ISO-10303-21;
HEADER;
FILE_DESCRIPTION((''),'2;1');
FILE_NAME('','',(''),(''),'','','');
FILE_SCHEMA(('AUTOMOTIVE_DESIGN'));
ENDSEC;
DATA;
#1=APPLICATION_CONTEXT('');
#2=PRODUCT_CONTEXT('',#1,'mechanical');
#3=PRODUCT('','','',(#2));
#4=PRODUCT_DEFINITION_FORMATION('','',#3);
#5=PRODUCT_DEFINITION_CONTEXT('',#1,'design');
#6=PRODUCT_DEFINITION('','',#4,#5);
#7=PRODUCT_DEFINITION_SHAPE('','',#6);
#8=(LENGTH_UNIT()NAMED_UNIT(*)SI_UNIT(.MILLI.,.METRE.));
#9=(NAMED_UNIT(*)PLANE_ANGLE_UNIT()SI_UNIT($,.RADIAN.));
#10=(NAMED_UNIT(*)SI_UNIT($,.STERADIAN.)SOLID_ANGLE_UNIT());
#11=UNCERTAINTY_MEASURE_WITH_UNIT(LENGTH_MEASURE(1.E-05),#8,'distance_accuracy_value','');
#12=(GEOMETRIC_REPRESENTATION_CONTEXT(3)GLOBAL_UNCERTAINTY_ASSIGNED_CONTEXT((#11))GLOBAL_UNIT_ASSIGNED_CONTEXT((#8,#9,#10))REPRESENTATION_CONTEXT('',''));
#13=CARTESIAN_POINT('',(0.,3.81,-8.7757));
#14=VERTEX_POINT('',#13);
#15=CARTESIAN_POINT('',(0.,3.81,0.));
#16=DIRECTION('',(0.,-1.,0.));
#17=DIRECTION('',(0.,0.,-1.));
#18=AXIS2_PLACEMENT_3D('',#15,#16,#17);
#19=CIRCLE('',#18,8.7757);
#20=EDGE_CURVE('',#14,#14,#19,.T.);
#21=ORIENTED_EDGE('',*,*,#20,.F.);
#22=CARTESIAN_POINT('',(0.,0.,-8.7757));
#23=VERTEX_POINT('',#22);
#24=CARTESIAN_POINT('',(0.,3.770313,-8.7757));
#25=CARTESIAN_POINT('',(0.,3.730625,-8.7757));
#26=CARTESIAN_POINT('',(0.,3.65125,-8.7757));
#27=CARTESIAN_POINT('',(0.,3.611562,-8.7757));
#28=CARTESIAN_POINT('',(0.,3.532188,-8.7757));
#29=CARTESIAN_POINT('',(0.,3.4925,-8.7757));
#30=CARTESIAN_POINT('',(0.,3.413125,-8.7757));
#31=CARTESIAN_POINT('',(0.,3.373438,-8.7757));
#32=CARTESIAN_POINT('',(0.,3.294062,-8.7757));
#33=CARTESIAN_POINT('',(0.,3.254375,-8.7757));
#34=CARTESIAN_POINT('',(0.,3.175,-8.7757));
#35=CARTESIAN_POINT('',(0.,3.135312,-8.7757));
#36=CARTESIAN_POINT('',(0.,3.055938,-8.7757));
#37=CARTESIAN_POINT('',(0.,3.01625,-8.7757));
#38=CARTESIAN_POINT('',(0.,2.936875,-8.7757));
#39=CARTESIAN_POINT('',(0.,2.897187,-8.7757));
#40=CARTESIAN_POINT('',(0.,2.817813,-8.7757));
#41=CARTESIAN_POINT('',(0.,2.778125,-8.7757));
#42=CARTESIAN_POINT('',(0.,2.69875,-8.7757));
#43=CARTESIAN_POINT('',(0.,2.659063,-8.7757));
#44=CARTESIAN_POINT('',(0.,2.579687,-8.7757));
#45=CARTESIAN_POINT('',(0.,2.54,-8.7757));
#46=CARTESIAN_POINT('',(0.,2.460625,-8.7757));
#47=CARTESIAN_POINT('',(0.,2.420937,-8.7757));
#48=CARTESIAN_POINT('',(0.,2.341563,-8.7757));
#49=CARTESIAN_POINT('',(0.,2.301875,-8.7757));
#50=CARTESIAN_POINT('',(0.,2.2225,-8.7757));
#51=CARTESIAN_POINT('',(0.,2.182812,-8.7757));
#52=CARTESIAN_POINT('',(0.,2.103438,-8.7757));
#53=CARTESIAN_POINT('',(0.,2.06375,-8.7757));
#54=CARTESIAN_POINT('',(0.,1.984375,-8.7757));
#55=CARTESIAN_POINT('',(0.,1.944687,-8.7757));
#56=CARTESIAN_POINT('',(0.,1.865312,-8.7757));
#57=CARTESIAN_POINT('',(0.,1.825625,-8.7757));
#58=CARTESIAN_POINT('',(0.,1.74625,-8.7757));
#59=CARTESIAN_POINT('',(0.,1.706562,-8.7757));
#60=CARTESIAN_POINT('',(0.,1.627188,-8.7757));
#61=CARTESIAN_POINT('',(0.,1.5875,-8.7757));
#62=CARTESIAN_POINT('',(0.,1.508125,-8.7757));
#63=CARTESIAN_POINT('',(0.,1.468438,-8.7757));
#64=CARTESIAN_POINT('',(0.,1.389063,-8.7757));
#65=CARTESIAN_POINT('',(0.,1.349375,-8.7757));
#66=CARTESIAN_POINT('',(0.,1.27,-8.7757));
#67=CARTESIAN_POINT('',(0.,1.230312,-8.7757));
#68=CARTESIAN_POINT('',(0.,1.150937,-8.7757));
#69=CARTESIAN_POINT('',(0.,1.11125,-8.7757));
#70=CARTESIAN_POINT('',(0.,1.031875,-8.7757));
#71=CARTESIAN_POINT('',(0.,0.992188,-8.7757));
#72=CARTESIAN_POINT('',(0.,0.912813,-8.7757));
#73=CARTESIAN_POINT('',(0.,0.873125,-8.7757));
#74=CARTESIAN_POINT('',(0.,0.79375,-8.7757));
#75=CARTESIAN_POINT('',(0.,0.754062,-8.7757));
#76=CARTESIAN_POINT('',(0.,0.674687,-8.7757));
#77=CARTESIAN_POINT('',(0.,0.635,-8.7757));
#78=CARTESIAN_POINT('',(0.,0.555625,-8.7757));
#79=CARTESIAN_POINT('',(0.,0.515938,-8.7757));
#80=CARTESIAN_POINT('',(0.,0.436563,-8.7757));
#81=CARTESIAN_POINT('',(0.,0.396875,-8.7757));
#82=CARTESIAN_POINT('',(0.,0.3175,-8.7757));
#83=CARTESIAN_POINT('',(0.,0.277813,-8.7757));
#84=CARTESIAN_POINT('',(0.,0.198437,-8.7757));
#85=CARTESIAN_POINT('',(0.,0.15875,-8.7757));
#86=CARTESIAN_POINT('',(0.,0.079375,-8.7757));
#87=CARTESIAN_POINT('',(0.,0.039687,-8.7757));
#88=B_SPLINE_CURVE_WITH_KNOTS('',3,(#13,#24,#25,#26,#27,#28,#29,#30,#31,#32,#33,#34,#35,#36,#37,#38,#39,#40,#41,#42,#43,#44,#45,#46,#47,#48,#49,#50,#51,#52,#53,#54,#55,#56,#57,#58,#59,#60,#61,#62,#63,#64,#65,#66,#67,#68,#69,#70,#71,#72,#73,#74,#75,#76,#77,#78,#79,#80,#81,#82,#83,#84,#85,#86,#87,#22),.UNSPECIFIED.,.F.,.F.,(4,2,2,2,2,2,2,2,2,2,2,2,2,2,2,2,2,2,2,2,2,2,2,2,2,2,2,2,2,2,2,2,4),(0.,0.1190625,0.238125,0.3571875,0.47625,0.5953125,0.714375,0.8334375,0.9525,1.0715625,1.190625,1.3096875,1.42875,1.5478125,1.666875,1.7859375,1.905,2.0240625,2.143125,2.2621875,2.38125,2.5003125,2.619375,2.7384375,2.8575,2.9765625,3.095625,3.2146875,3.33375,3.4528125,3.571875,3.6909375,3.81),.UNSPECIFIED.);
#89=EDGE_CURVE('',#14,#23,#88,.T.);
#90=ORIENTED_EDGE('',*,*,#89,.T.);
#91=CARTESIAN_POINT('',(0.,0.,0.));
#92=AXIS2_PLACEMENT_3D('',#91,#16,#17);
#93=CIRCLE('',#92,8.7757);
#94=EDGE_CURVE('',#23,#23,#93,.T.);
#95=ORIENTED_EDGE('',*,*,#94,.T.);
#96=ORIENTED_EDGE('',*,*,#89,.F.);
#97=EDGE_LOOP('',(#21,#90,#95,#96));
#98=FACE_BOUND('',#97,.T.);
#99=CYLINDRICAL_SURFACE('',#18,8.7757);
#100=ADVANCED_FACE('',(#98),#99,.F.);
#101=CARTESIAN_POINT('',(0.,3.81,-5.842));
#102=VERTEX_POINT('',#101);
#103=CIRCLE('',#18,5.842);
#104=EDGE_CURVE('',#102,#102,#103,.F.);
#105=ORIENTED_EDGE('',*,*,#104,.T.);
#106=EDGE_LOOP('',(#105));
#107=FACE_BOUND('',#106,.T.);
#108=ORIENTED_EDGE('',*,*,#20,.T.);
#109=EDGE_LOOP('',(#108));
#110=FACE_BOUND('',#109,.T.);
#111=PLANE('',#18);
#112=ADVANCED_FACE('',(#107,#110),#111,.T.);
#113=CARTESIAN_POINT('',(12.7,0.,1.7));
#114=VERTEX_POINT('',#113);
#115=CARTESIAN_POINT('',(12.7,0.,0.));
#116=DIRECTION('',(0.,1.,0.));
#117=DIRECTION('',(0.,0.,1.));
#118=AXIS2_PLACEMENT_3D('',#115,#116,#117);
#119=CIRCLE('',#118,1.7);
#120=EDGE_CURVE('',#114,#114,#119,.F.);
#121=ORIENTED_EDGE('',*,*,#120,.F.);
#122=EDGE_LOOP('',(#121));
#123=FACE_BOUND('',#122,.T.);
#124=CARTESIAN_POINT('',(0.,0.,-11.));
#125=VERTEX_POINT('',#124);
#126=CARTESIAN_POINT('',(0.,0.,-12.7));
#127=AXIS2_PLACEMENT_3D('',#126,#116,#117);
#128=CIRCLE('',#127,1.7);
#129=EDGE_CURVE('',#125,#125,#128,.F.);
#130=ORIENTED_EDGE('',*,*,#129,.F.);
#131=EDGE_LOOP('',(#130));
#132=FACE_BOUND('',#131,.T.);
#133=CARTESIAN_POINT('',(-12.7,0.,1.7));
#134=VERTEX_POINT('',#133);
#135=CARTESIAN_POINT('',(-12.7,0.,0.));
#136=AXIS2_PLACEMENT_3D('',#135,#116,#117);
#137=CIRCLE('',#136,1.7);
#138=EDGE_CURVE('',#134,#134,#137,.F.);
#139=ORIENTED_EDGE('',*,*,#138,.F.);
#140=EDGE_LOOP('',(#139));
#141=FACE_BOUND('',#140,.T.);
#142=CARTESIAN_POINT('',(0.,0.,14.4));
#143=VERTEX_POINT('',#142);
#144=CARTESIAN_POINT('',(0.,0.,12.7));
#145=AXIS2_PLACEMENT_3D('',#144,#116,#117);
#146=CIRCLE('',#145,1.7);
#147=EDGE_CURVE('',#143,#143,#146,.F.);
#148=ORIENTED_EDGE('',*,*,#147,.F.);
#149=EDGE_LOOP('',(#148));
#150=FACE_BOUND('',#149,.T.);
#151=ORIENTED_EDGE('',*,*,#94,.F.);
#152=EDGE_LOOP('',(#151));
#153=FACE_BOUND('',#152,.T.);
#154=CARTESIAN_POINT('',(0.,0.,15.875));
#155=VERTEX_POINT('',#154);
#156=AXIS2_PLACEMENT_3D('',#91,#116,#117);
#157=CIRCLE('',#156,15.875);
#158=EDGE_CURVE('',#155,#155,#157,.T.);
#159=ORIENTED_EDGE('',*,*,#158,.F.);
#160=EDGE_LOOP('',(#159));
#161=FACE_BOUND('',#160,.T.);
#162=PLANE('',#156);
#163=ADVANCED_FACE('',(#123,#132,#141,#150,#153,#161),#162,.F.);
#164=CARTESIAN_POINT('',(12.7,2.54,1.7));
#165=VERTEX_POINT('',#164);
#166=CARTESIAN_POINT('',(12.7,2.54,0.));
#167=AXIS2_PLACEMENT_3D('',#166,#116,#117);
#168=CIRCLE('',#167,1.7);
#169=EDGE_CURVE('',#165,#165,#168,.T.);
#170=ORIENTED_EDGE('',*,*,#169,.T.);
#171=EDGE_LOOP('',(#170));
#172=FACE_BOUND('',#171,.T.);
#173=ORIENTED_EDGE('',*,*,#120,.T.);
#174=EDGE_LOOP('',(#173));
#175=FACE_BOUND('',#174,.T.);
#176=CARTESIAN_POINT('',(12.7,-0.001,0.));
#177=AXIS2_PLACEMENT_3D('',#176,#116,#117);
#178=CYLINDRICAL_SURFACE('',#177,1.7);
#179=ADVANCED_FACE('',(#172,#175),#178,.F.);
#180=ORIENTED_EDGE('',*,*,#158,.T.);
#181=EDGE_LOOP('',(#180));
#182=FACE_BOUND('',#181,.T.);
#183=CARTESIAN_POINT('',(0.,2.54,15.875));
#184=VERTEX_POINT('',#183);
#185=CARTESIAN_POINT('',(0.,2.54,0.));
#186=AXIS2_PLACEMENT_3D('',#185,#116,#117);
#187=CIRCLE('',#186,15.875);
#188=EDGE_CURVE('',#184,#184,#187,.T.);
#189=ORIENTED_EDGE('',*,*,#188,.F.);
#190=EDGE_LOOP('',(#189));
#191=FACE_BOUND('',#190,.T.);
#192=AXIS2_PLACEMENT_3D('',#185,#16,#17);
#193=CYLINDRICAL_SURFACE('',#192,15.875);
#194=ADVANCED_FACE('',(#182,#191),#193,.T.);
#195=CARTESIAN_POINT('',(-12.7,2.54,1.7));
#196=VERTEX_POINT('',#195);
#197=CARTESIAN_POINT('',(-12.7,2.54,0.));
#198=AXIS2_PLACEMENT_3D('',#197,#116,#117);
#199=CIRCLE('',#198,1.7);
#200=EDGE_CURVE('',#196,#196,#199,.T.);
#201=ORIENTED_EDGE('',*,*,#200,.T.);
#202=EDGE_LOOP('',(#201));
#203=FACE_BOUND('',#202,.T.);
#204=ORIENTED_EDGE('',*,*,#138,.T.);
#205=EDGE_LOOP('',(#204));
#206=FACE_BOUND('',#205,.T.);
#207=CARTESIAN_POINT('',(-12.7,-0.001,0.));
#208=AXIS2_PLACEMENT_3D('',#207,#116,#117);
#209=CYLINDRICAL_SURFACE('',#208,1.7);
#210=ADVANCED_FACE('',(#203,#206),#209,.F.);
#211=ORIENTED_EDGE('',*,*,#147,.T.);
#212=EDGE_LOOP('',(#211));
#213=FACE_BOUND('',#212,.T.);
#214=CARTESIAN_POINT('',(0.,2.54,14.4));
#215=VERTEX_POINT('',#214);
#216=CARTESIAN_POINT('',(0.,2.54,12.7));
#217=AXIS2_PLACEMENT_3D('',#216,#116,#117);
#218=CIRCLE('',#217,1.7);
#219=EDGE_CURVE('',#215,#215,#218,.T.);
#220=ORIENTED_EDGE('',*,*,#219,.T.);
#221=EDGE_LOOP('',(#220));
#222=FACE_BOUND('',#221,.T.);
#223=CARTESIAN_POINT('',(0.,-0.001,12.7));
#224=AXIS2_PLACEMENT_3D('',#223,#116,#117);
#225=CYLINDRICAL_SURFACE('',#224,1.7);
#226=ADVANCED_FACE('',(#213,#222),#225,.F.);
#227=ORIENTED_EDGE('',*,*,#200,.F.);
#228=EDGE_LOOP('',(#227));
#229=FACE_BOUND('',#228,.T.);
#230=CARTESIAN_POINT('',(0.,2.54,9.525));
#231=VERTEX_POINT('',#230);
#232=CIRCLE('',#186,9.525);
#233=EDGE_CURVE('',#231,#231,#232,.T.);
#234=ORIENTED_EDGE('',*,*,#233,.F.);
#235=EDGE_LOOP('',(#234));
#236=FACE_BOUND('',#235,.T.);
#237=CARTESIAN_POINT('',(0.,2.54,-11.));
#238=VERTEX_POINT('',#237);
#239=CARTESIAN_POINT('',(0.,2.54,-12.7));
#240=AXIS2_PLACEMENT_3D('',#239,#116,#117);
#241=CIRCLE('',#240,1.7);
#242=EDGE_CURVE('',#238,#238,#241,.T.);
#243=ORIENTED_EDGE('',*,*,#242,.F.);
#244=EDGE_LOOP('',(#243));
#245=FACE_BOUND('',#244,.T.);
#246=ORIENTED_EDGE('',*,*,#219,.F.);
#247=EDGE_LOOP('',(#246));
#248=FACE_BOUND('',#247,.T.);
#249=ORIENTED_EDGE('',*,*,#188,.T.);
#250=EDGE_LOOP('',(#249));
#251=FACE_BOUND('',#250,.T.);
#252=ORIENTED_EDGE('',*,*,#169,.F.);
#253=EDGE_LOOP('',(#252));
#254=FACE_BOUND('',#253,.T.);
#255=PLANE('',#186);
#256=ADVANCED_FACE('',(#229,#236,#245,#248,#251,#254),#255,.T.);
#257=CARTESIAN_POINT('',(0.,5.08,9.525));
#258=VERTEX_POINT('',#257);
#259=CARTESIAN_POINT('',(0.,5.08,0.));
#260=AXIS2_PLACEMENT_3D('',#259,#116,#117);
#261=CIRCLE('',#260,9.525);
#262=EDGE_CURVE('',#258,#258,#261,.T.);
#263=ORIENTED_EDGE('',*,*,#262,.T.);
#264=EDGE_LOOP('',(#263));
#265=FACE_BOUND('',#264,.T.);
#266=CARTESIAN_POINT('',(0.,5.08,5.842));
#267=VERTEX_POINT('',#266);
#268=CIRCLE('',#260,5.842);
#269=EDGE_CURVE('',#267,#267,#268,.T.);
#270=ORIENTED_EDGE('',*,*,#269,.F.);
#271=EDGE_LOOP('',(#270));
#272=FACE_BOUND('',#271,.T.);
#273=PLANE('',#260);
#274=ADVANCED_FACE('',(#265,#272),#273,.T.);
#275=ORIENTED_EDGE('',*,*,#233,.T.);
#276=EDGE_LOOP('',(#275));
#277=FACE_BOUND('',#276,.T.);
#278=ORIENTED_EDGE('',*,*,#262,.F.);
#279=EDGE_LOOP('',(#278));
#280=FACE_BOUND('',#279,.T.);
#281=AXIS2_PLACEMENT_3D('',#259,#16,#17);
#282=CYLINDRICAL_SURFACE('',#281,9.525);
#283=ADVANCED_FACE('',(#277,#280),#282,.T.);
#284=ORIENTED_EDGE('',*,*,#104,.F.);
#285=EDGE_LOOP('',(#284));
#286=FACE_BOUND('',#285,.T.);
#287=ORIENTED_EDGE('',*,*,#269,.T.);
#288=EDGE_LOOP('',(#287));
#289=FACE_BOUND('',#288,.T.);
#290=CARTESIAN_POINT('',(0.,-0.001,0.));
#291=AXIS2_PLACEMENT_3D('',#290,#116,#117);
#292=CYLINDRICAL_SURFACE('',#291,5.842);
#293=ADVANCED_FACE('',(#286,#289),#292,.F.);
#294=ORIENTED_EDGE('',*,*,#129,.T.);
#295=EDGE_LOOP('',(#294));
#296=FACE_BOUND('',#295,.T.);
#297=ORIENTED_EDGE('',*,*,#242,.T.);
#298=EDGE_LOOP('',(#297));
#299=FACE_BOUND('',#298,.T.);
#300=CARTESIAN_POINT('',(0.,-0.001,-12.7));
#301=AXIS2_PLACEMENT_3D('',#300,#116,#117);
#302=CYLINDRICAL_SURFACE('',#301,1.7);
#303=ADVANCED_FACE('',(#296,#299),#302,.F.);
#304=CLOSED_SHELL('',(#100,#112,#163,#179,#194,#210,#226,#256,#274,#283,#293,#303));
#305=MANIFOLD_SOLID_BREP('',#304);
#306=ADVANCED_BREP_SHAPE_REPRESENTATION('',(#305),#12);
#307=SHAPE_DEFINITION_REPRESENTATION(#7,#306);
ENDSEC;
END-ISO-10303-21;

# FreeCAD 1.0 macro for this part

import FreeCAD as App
import Part
import Sketcher
Q = App.Units.Quantity

doc = App.newDocument("Part")
body = doc.addObject("PartDesign::Body", "Body")

# Sketch on XZ plane
sketch1 = body.newObject("Sketcher::SketchObject", "Sketch")
sketch1.AttachmentSupport = (doc.getObject("XZ_Plane"), [""])
sketch1.MapMode = "FlatFace"
sketch1.addGeometry(Part.Circle(App.Vector(0, 0, 0), App.Vector(0, 0, 1), 16), False)
sketch1.addConstraint([
    Sketcher.Constraint("Coincident", 0, 3, -1, 1),
    Sketcher.Constraint("Diameter", 0, Q("1.25 in")),
])
pad1 = body.newObject("PartDesign::Pad", "Pad")
pad1.Profile = sketch1
pad1.Length = Q("0.1 in")
pad1.Reversed = True

# Sketch on XZ plane
sketch2 = body.newObject("Sketcher::SketchObject", "Sketch001")
sketch2.AttachmentSupport = (doc.getObject("XZ_Plane"), [""])
sketch2.MapMode = "FlatFace"
sketch2.AttachmentOffset = App.Placement(App.Vector(0, 0, -0.1 * 25.4), App.Rotation())
sketch2.addGeometry(Part.Circle(App.Vector(0, 0, 0), App.Vector(0, 0, 1), 10), False)
sketch2.addConstraint([
    Sketcher.Constraint("Coincident", 0, 3, -1, 1),
    Sketcher.Constraint("Diameter", 0, Q("0.75 in")),
])
pad2 = body.newObject("PartDesign::Pad", "Pad001")
pad2.Profile = sketch2
pad2.Length = Q("0.1 in")
pad2.Reversed = True

# Sketch on XZ plane
sketch3 = body.newObject("Sketcher::SketchObject", "Sketch002")
sketch3.AttachmentSupport = (doc.getObject("XZ_Plane"), [""])
sketch3.MapMode = "FlatFace"
sketch3.addGeometry(Part.Circle(App.Vector(0, 0, 0), App.Vector(0, 0, 1), 9), False)
sketch3.addConstraint([
    Sketcher.Constraint("Coincident", 0, 3, -1, 1),
    Sketcher.Constraint("Diameter", 0, Q("0.691 in")),
])
pocket1 = body.newObject("PartDesign::Pocket", "Pocket")
pocket1.Profile = sketch3
pocket1.Length = Q("0.15 in")

# Sketch on XZ plane
sketch4 = body.newObject("Sketcher::SketchObject", "Sketch003")
sketch4.AttachmentSupport = (doc.getObject("XZ_Plane"), [""])
sketch4.MapMode = "FlatFace"
sketch4.AttachmentOffset = App.Placement(App.Vector(0, 0, -0.2 * 25.4), App.Rotation())
sketch4.addGeometry(Part.Circle(App.Vector(0, 0, 0), App.Vector(0, 0, 1), 6), False)
sketch4.addConstraint([
    Sketcher.Constraint("Coincident", 0, 3, -1, 1),
    Sketcher.Constraint("Diameter", 0, Q("0.46 in")),
])
pocket2 = body.newObject("PartDesign::Pocket", "Pocket001")
pocket2.Profile = sketch4
pocket2.Type = "UpToFirst"
pocket2.Reversed = True

# Sketch on XZ plane
sketch5 = body.newObject("Sketcher::SketchObject", "Sketch004")
sketch5.AttachmentSupport = (doc.getObject("XZ_Plane"), [""])
sketch5.MapMode = "FlatFace"
sketch5.AttachmentOffset = App.Placement(App.Vector(0, 0, -0.1 * 25.4), App.Rotation())
sketch5.addGeometry(Part.Circle(App.Vector(0, -12.7, 0), App.Vector(0, 0, 1), 1.7), False)
sketch5.addConstraint([
    Sketcher.Constraint("PointOnObject", 0, 3, -2),
    Sketcher.Constraint("DistanceY", 0, 3, -1, 1, Q("0.5 in")),
    Sketcher.Constraint("Diameter", 0, Q("3.4 mm")),
])
pocket3 = body.newObject("PartDesign::Pocket", "Pocket002")
pocket3.Profile = sketch5
pocket3.Type = "UpToFirst"
pocket3.Reversed = True

# Sketch on XZ plane
sketch6 = body.newObject("Sketcher::SketchObject", "Sketch005")
sketch6.AttachmentSupport = (doc.getObject("XZ_Plane"), [""])
sketch6.MapMode = "FlatFace"
sketch6.AttachmentOffset = App.Placement(App.Vector(0, 0, -0.1 * 25.4), App.Rotation())
sketch6.addGeometry(Part.Circle(App.Vector(12.7, 0, 0), App.Vector(0, 0, 1), 1.7), False)
sketch6.addConstraint([
    Sketcher.Constraint("PointOnObject", 0, 3, -1),
    Sketcher.Constraint("DistanceX", -1, 1, 0, 3, Q("0.5 in")),
    Sketcher.Constraint("Diameter", 0, Q("3.4 mm")),
])
pocket4 = body.newObject("PartDesign::Pocket", "Pocket003")
pocket4.Profile = sketch6
pocket4.Type = "UpToFirst"
pocket4.Reversed = True

# Sketch on XZ plane
sketch7 = body.newObject("Sketcher::SketchObject", "Sketch006")
sketch7.AttachmentSupport = (doc.getObject("XZ_Plane"), [""])
sketch7.MapMode = "FlatFace"
sketch7.AttachmentOffset = App.Placement(App.Vector(0, 0, -0.1 * 25.4), App.Rotation())
sketch7.addGeometry(Part.Circle(App.Vector(0, 12.7, 0), App.Vector(0, 0, 1), 1.7), False)
sketch7.addConstraint([
    Sketcher.Constraint("PointOnObject", 0, 3, -2),
    Sketcher.Constraint("DistanceY", -1, 1, 0, 3, Q("0.5 in")),
    Sketcher.Constraint("Diameter", 0, Q("3.4 mm")),
])
pocket5 = body.newObject("PartDesign::Pocket", "Pocket004")
pocket5.Profile = sketch7
pocket5.Type = "UpToFirst"
pocket5.Reversed = True

# Sketch on XZ plane
sketch8 = body.newObject("Sketcher::SketchObject", "Sketch007")
sketch8.AttachmentSupport = (doc.getObject("XZ_Plane"), [""])
sketch8.MapMode = "FlatFace"
sketch8.AttachmentOffset = App.Placement(App.Vector(0, 0, -0.1 * 25.4), App.Rotation())
sketch8.addGeometry(Part.Circle(App.Vector(-12.7, 0, 0), App.Vector(0, 0, 1), 1.7), False)
sketch8.addConstraint([
    Sketcher.Constraint("PointOnObject", 0, 3, -1),
    Sketcher.Constraint("DistanceX", 0, 3, -1, 1, Q("0.5 in")),
    Sketcher.Constraint("Diameter", 0, Q("3.4 mm")),
])
pocket6 = body.newObject("PartDesign::Pocket", "Pocket005")
pocket6.Profile = sketch8
pocket6.Type = "UpToFirst"
pocket6.Reversed = True

doc.recompute()
